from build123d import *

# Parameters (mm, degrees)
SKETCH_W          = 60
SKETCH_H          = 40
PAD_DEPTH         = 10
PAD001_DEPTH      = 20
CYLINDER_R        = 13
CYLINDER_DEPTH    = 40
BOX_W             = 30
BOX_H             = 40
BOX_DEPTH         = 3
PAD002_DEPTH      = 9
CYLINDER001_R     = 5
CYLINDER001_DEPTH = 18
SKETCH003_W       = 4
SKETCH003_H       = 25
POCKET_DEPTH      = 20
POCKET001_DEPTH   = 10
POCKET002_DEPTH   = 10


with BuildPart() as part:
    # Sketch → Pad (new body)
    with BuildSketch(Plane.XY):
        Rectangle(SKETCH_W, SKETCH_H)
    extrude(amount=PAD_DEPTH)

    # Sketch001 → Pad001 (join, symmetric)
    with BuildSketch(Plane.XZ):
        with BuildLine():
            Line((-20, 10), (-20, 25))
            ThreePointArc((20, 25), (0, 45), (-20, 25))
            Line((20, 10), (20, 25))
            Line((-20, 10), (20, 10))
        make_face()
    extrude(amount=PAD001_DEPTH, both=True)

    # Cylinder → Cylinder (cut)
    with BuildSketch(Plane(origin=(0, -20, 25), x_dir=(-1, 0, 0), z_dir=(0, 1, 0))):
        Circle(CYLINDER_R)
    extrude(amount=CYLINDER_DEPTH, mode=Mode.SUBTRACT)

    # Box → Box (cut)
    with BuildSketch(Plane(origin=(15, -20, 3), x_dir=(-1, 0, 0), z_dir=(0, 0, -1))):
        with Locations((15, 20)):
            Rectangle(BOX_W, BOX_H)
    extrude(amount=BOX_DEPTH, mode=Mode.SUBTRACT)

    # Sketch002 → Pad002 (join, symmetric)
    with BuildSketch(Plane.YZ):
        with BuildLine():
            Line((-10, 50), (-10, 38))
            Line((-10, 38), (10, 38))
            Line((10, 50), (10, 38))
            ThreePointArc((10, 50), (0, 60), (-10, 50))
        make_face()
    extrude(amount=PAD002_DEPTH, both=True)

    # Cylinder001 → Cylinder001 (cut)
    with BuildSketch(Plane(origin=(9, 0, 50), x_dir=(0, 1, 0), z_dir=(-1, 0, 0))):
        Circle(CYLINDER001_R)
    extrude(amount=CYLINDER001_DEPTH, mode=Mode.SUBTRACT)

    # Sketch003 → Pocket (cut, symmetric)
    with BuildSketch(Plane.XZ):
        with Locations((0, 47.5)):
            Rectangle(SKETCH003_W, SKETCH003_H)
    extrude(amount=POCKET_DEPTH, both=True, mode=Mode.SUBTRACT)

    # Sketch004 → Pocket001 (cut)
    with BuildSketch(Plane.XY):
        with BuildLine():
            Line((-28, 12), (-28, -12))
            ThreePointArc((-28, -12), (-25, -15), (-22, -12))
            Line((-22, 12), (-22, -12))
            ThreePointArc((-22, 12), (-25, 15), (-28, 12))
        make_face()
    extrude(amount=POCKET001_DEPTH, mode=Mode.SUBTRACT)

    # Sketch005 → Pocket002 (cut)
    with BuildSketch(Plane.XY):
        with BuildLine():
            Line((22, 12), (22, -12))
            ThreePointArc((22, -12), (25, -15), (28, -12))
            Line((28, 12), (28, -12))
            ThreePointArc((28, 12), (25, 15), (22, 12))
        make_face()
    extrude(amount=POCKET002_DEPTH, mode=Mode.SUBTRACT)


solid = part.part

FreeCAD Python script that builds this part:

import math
import FreeCAD as App
import Part
import Sketcher
from FreeCAD import Vector


def add_polygon(sketch, points):
    """Adds a closed chain of lines whose ends are joined by coincident constraints."""
    first, n = sketch.GeometryCount, len(points)
    for a, b in zip(points, points[1:] + points[:1]):
        sketch.addGeometry(Part.LineSegment(App.Vector(*a, 0), App.Vector(*b, 0)), False)
    for i in range(n):
        sketch.addConstraint(Sketcher.Constraint("Coincident", first + i, 2, first + (i + 1) % n, 1))

doc = App.newDocument("Part")
body = doc.addObject("PartDesign::Body", "Body")

# Sketch on XY plane
sketch1 = body.newObject("Sketcher::SketchObject", "Sketch")
sketch1.AttachmentSupport = (doc.getObject("XY_Plane"), [""])
sketch1.MapMode = "FlatFace"
add_polygon(sketch1, [(-30, 20), (-30, -20), (30, -20), (30, 20)])  # lines 0-3
sketch1.addConstraint([
    Sketcher.Constraint("Vertical", 0),
    Sketcher.Constraint("Horizontal", 1),
    Sketcher.Constraint("Vertical", 2),
    Sketcher.Constraint("Horizontal", 3),
    Sketcher.Constraint("Symmetric", 0, 2, 2, 2, -1, 1),
    Sketcher.Constraint("DistanceX", 1, 1, 1, 2, 60.0),
    Sketcher.Constraint("DistanceY", 0, 2, 0, 1, 40.0),
])
pad1 = body.newObject("PartDesign::Pad", "Pad")
pad1.Profile = sketch1
pad1.Length = 10

# Sketch on XZ plane
sketch2 = body.newObject("Sketcher::SketchObject", "Sketch001")
sketch2.AttachmentSupport = (doc.getObject("XZ_Plane"), [""])
sketch2.MapMode = "FlatFace"
sketch2.addGeometry([
    Part.LineSegment(Vector(-20, 25, 0), Vector(-20, 10, 0)),
    Part.LineSegment(Vector(-20, 10, 0), Vector(20, 10, 0)),
    Part.LineSegment(Vector(20, 10, 0), Vector(20, 25, 0)),
    Part.ArcOfCircle(Part.Circle(Vector(0, 25, 0), Vector(0, 0, 1), 20), math.radians(0), math.radians(180)),
], False)
sketch2.addConstraint([
    Sketcher.Constraint("Coincident", 0, 2, 1, 1),
    Sketcher.Constraint("Coincident", 1, 2, 2, 1),
    Sketcher.Constraint("Tangent", 2, 2, 3, 1),
    Sketcher.Constraint("Tangent", 3, 2, 0, 1),
    Sketcher.Constraint("Vertical", 0),
    Sketcher.Constraint("Horizontal", 1),
    Sketcher.Constraint("Vertical", 2),
    Sketcher.Constraint("PointOnObject", 3, 3, -2),
    Sketcher.Constraint("Radius", 3, 20.0),
    Sketcher.Constraint("DistanceY", 0, 2, 0, 1, 15.0),
    Sketcher.Constraint("DistanceY", -1, 1, 3, 3, 25.0),
])
pad2 = body.newObject("PartDesign::Pad", "Pad001")
pad2.Profile = sketch2
pad2.Length = 40
pad2.Midplane = True

# Sketch on XZ plane
sketch3 = body.newObject("Sketcher::SketchObject", "Sketch002")
sketch3.AttachmentSupport = (doc.getObject("XZ_Plane"), [""])
sketch3.MapMode = "FlatFace"
sketch3.AttachmentOffset = App.Placement(Vector(0, 0, 20), App.Rotation())
sketch3.addGeometry(Part.Circle(Vector(0, 25, 0), Vector(0, 0, 1), 13), False)
sketch3.addConstraint([
    Sketcher.Constraint("PointOnObject", 0, 3, -2),
    Sketcher.Constraint("Diameter", 0, 26.0),
    Sketcher.Constraint("DistanceY", -1, 1, 0, 3, 25.0),
])
pocket1 = body.newObject("PartDesign::Pocket", "Pocket")
pocket1.Profile = sketch3
pocket1.Length = 40

# Sketch on XY plane
sketch4 = body.newObject("Sketcher::SketchObject", "Sketch003")
sketch4.AttachmentSupport = (doc.getObject("XY_Plane"), [""])
sketch4.MapMode = "FlatFace"
sketch4.AttachmentOffset = App.Placement(Vector(0, 0, 3), App.Rotation())
add_polygon(sketch4, [(15, 20), (15, -20), (-15, -20), (-15, 20)])  # lines 0-3
sketch4.addConstraint([
    Sketcher.Constraint("Vertical", 0),
    Sketcher.Constraint("Horizontal", 1),
    Sketcher.Constraint("Vertical", 2),
    Sketcher.Constraint("Horizontal", 3),
    Sketcher.Constraint("Symmetric", 0, 2, 2, 2, -1, 1),
    Sketcher.Constraint("DistanceX", 1, 2, 1, 1, 30.0),
    Sketcher.Constraint("DistanceY", 0, 2, 0, 1, 40.0),
])
pocket2 = body.newObject("PartDesign::Pocket", "Pocket001")
pocket2.Profile = sketch4
pocket2.Length = 3

# Sketch on YZ plane
sketch5 = body.newObject("Sketcher::SketchObject", "Sketch004")
sketch5.AttachmentSupport = (doc.getObject("YZ_Plane"), [""])
sketch5.MapMode = "FlatFace"
sketch5.addGeometry([
    Part.LineSegment(Vector(-10, 50, 0), Vector(-10, 38, 0)),
    Part.LineSegment(Vector(-10, 38, 0), Vector(10, 38, 0)),
    Part.LineSegment(Vector(10, 38, 0), Vector(10, 50, 0)),
    Part.ArcOfCircle(Part.Circle(Vector(0, 50, 0), Vector(0, 0, 1), 10), math.radians(0), math.radians(180)),
], False)
sketch5.addConstraint([
    Sketcher.Constraint("Coincident", 0, 2, 1, 1),
    Sketcher.Constraint("Coincident", 1, 2, 2, 1),
    Sketcher.Constraint("Tangent", 2, 2, 3, 1),
    Sketcher.Constraint("Tangent", 3, 2, 0, 1),
    Sketcher.Constraint("Vertical", 0),
    Sketcher.Constraint("Horizontal", 1),
    Sketcher.Constraint("Vertical", 2),
    Sketcher.Constraint("PointOnObject", 3, 3, -2),
    Sketcher.Constraint("Radius", 3, 10.0),
    Sketcher.Constraint("DistanceY", 0, 2, 0, 1, 12.0),
    Sketcher.Constraint("DistanceY", -1, 1, 3, 3, 50.0),
])
pad3 = body.newObject("PartDesign::Pad", "Pad002")
pad3.Profile = sketch5
pad3.Length = 18
pad3.Midplane = True

# Sketch on YZ plane
sketch6 = body.newObject("Sketcher::SketchObject", "Sketch005")
sketch6.AttachmentSupport = (doc.getObject("YZ_Plane"), [""])
sketch6.MapMode = "FlatFace"
sketch6.AttachmentOffset = App.Placement(Vector(0, 0, 9), App.Rotation())
sketch6.addGeometry(Part.Circle(Vector(0, 50, 0), Vector(0, 0, 1), 5), False)
sketch6.addConstraint([
    Sketcher.Constraint("PointOnObject", 0, 3, -2),
    Sketcher.Constraint("Diameter", 0, 10.0),
    Sketcher.Constraint("DistanceY", -1, 1, 0, 3, 50.0),
])
pocket3 = body.newObject("PartDesign::Pocket", "Pocket002")
pocket3.Profile = sketch6
pocket3.Length = 18

# Sketch on XZ plane
sketch7 = body.newObject("Sketcher::SketchObject", "Sketch006")
sketch7.AttachmentSupport = (doc.getObject("XZ_Plane"), [""])
sketch7.MapMode = "FlatFace"
add_polygon(sketch7, [(-2, 60), (-2, 35), (2, 35), (2, 60)])  # lines 0-3
sketch7.addConstraint([
    Sketcher.Constraint("Vertical", 0),
    Sketcher.Constraint("Horizontal", 1),
    Sketcher.Constraint("Vertical", 2),
    Sketcher.Constraint("Horizontal", 3),
    Sketcher.Constraint("DistanceX", 1, 1, 1, 2, 4.0),
    Sketcher.Constraint("DistanceY", 0, 2, 0, 1, 25.0),
    Sketcher.Constraint("DistanceX", 0, 2, -1, 1, 2.0),
    Sketcher.Constraint("DistanceY", -1, 1, 0, 2, 35.0),
])
pocket4 = body.newObject("PartDesign::Pocket", "Pocket003")
pocket4.Profile = sketch7
pocket4.Length = 40
pocket4.Midplane = True

# Sketch on XY plane
sketch8 = body.newObject("Sketcher::SketchObject", "Sketch007")
sketch8.AttachmentSupport = (doc.getObject("XY_Plane"), [""])
sketch8.MapMode = "FlatFace"
sketch8.addGeometry([
    Part.LineSegment(Vector(-28, 12, 0), Vector(-28, -12, 0)),
    Part.ArcOfCircle(Part.Circle(Vector(-25, -12, 0), Vector(0, 0, 1), 3), math.radians(180), math.radians(360)),
    Part.LineSegment(Vector(-22, -12, 0), Vector(-22, 12, 0)),
    Part.ArcOfCircle(Part.Circle(Vector(-25, 12, 0), Vector(0, 0, 1), 3), math.radians(0), math.radians(180)),
], False)
sketch8.addConstraint([
    Sketcher.Constraint("Tangent", 0, 2, 1, 1),
    Sketcher.Constraint("Tangent", 1, 2, 2, 1),
    Sketcher.Constraint("Tangent", 2, 2, 3, 1),
    Sketcher.Constraint("Tangent", 3, 2, 0, 1),
    Sketcher.Constraint("Vertical", 0),
    Sketcher.Constraint("Vertical", 2),
    Sketcher.Constraint("Radius", 1, 3.0),
    Sketcher.Constraint("DistanceY", 0, 2, 0, 1, 24.0),
    Sketcher.Constraint("DistanceX", 1, 3, -1, 1, 25.0),
    Sketcher.Constraint("DistanceY", 1, 3, -1, 1, 12.0),
])
pocket5 = body.newObject("PartDesign::Pocket", "Pocket004")
pocket5.Profile = sketch8
pocket5.Length = 10
pocket5.Reversed = True

# Sketch on XY plane
sketch9 = body.newObject("Sketcher::SketchObject", "Sketch008")
sketch9.AttachmentSupport = (doc.getObject("XY_Plane"), [""])
sketch9.MapMode = "FlatFace"
sketch9.addGeometry([
    Part.LineSegment(Vector(22, 12, 0), Vector(22, -12, 0)),
    Part.ArcOfCircle(Part.Circle(Vector(25, -12, 0), Vector(0, 0, 1), 3), math.radians(180), math.radians(360)),
    Part.LineSegment(Vector(28, -12, 0), Vector(28, 12, 0)),
    Part.ArcOfCircle(Part.Circle(Vector(25, 12, 0), Vector(0, 0, 1), 3), math.radians(0), math.radians(180)),
], False)
sketch9.addConstraint([
    Sketcher.Constraint("Tangent", 0, 2, 1, 1),
    Sketcher.Constraint("Tangent", 1, 2, 2, 1),
    Sketcher.Constraint("Tangent", 2, 2, 3, 1),
    Sketcher.Constraint("Tangent", 3, 2, 0, 1),
    Sketcher.Constraint("Vertical", 0),
    Sketcher.Constraint("Vertical", 2),
    Sketcher.Constraint("Radius", 1, 3.0),
    Sketcher.Constraint("DistanceY", 0, 2, 0, 1, 24.0),
    Sketcher.Constraint("DistanceX", -1, 1, 1, 3, 25.0),
    Sketcher.Constraint("DistanceY", 1, 3, -1, 1, 12.0),
])
pocket6 = body.newObject("PartDesign::Pocket", "Pocket005")
pocket6.Profile = sketch9
pocket6.Length = 10
pocket6.Reversed = True

doc.recompute()
